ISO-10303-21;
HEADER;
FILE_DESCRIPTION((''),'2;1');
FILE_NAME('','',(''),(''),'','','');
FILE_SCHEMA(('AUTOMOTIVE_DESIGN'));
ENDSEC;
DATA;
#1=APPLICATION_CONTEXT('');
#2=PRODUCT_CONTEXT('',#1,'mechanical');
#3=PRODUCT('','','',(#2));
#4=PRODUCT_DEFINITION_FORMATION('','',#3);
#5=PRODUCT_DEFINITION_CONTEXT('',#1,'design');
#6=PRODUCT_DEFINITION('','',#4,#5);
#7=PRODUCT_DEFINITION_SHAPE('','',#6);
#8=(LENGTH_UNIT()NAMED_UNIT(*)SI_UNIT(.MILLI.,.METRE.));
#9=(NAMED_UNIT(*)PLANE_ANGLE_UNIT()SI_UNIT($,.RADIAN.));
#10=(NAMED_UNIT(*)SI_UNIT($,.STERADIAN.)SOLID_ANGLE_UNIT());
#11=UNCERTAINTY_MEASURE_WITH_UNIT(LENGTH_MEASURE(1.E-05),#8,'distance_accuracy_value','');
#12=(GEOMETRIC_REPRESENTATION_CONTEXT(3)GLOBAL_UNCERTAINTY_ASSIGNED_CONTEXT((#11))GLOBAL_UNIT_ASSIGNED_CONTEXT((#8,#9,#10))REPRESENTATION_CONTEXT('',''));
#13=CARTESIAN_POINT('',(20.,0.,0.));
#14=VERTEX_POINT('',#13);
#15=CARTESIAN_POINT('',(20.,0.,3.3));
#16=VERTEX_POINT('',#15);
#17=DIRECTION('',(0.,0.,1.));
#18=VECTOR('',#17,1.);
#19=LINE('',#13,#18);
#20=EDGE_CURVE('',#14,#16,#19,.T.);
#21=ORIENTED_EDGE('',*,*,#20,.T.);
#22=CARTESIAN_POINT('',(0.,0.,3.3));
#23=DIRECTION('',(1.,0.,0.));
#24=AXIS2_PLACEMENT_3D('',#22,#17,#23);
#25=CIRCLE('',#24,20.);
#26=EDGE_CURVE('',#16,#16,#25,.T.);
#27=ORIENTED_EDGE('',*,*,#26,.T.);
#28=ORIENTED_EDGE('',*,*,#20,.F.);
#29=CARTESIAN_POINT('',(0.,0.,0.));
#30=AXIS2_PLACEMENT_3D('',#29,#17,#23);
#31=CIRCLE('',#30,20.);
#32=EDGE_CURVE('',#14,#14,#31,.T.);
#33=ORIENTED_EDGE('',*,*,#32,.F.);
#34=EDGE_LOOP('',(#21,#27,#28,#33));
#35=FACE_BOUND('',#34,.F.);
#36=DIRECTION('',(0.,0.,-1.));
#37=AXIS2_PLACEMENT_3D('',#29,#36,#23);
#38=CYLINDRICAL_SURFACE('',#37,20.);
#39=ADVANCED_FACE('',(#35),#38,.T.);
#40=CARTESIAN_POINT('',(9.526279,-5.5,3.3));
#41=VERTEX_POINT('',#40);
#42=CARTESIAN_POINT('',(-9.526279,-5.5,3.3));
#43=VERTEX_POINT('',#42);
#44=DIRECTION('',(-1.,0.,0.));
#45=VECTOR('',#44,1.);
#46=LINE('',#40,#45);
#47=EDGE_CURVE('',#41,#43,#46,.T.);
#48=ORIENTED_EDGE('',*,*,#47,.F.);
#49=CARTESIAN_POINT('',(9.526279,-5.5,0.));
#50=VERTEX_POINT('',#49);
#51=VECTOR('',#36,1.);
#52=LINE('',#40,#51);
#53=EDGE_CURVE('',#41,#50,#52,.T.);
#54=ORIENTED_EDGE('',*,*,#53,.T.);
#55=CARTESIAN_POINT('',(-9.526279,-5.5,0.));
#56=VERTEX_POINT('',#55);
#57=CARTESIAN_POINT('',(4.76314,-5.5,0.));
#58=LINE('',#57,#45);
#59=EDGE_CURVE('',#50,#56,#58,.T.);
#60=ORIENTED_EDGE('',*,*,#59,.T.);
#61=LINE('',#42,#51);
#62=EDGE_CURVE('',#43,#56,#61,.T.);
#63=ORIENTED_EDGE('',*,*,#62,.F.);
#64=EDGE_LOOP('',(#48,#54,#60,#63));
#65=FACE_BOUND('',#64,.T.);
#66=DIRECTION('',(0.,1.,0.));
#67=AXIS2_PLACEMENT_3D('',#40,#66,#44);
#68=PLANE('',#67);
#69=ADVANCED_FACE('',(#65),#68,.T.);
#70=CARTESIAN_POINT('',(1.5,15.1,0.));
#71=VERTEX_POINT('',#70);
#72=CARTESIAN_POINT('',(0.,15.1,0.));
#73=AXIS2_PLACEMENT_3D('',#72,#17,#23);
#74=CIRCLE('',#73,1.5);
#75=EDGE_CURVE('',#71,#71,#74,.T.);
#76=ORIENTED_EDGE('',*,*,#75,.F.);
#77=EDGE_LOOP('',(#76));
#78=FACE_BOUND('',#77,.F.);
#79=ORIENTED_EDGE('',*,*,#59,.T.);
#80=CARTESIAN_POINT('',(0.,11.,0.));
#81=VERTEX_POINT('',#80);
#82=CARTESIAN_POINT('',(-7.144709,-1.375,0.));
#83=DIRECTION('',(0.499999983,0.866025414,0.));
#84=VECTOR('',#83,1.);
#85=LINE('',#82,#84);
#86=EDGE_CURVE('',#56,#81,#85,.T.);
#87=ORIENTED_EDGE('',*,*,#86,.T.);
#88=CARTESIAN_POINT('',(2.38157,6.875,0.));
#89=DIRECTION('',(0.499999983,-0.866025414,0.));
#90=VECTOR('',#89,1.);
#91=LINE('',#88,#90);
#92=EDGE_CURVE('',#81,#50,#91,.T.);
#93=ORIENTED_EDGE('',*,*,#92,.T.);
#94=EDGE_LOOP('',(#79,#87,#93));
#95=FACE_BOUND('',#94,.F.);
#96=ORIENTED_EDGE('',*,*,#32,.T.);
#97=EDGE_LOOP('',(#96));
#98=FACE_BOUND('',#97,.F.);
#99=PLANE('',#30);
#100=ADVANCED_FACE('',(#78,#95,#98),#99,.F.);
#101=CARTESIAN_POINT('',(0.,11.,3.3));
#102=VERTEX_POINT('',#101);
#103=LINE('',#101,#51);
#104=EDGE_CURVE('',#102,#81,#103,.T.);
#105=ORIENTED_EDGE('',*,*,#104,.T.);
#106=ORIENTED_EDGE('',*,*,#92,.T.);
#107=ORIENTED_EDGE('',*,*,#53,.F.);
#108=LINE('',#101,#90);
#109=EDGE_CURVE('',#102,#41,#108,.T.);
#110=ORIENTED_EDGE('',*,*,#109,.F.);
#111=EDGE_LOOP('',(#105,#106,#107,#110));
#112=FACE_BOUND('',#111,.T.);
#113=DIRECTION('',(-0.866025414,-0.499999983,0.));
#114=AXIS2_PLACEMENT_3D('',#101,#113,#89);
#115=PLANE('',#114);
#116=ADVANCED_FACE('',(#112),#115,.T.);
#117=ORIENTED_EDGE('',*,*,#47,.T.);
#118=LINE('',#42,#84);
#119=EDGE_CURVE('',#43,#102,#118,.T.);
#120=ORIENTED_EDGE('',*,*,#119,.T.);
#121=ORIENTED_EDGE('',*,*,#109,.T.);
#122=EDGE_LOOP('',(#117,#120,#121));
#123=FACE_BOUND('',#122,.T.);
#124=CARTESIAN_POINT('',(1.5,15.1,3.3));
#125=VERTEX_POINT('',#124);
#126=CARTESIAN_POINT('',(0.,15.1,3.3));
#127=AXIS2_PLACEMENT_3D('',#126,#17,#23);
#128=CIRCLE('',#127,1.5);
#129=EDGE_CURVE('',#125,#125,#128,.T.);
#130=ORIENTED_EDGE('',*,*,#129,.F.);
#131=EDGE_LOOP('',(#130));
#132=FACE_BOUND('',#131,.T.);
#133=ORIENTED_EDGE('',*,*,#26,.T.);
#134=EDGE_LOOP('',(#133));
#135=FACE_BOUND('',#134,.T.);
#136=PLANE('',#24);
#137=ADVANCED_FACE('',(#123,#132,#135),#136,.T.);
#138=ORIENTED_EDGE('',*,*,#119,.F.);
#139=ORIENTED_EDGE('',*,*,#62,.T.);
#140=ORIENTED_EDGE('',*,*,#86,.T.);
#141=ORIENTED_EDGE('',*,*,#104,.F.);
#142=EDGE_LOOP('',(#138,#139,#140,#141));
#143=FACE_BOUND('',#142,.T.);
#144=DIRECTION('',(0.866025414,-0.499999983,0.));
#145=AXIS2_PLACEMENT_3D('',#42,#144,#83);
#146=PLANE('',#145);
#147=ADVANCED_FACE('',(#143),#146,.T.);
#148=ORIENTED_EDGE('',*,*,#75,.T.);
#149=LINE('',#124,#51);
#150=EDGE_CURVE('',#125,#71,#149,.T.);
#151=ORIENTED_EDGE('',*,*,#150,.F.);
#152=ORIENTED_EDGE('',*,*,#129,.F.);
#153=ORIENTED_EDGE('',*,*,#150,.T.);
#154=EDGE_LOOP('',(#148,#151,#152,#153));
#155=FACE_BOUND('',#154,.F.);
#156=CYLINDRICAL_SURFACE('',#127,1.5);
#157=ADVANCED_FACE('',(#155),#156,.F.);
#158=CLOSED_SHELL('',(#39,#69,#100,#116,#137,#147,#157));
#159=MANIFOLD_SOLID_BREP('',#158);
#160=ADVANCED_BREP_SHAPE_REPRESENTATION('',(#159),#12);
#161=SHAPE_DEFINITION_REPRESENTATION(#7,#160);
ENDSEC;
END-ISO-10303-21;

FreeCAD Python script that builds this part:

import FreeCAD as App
import Part
import Sketcher
Q = App.Units.Quantity

doc = App.newDocument("Part")
params = doc.addObject("Spreadsheet::Sheet", "Params")
for row, (alias, value) in enumerate([
    ("sketch1_diameter", "40 mm"),
    ("pad1_length", "3.3 mm"),
    ("sketch2_diameter", "3 mm"),
], start=1):
    params.set(f"A{row}", alias)
    params.set(f"B{row}", "=" + value)
    params.setAlias(f"B{row}", alias)

body = doc.addObject("PartDesign::Body", "Body")

sketch1 = doc.addObject("Sketcher::SketchObject", "Sketch")
body.addObject(sketch1)
sketch1.AttachmentSupport = (doc.XY_Plane, [""])
sketch1.MapMode = "FlatFace"
sketch1.addGeometry(Part.Circle(App.Vector(0, 0, 0), App.Vector(0, 0, 1), 20), False)
sketch1.addConstraint([
    Sketcher.Constraint("Coincident", 0, 3, -1, 1),
    Sketcher.Constraint("Diameter", 0, 40.0),
])
sketch1.setExpression("Constraints[1]", "Params.sketch1_diameter")
pad1 = doc.addObject("PartDesign::Pad", "Pad")
body.addObject(pad1)
pad1.Profile = sketch1
pad1.setExpression("Length", "Params.pad1_length")

sketch2 = doc.addObject("Sketcher::SketchObject", "Sketch001")
body.addObject(sketch2)
sketch2.AttachmentSupport = (doc.XY_Plane, [""])
sketch2.MapMode = "FlatFace"
sketch2.AttachmentOffset = App.Placement(App.Vector(0, 0, 3.3), App.Rotation())
sketch2.addGeometry(Part.Circle(App.Vector(0, 15.1, 0), App.Vector(0, 0, 1), 1.5), False)
sketch2.addConstraint([
    Sketcher.Constraint("PointOnObject", 0, 3, -2),
    Sketcher.Constraint("Diameter", 0, 3.0),
    Sketcher.Constraint("DistanceY", -1, 1, 0, 3, 15.1),
])
sketch2.setExpression("Constraints[1]", "Params.sketch2_diameter")
pocket1 = doc.addObject("PartDesign::Pocket", "Pocket")
body.addObject(pocket1)
pocket1.Profile = sketch2
pocket1.Type = "ThroughAll"

sketch3 = doc.addObject("Sketcher::SketchObject", "Sketch002")
body.addObject(sketch3)
sketch3.AttachmentSupport = (doc.XY_Plane, [""])
sketch3.MapMode = "FlatFace"
sketch3.AttachmentOffset = App.Placement(App.Vector(0, 0, 3.3), App.Rotation())
sketch3.addGeometry([
    Part.LineSegment(App.Vector(0, 11, 0), App.Vector(-10, -6, 0)),
    Part.LineSegment(App.Vector(-10, -6, 0), App.Vector(10, -6, 0)),
    Part.LineSegment(App.Vector(10, -6, 0), App.Vector(0, 11, 0)),
], False)
sketch3.addConstraint([
    Sketcher.Constraint("Coincident", 0, 2, 1, 1),
    Sketcher.Constraint("Coincident", 1, 2, 2, 1),
    Sketcher.Constraint("Coincident", 2, 2, 0, 1),
    Sketcher.Constraint("Horizontal", 1),
    Sketcher.Constraint("PointOnObject", 2, 2, -2),
    Sketcher.Constraint("Equal", 0, 2),
    Sketcher.Constraint("Angle", 0, Q("-119.999999 deg")),
    Sketcher.Constraint("DistanceY", -1, 1, 2, 2, 11.0),
    Sketcher.Constraint("DistanceY", 0, 2, -1, 1, 5.5),
])
pocket2 = doc.addObject("PartDesign::Pocket", "Pocket001")
body.addObject(pocket2)
pocket2.Profile = sketch3
pocket2.Type = "ThroughAll"

doc.recompute()
